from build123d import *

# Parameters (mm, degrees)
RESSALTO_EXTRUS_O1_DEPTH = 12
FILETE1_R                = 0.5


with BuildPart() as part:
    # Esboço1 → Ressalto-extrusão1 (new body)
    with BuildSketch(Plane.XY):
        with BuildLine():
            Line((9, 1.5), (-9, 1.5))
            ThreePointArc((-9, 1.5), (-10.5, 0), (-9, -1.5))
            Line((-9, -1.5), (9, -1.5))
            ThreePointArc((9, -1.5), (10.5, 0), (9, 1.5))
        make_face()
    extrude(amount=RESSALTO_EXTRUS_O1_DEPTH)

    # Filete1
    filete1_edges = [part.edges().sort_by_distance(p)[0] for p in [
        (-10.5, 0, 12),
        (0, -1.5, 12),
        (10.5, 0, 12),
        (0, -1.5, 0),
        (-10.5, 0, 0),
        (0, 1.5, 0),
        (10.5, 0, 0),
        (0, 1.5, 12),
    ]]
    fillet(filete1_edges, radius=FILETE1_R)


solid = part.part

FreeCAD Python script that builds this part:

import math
import FreeCAD as App
import Part
import Sketcher
from FreeCAD import Vector
Q = App.Units.Quantity


def edges_at(feature, points):
    """Names of the edges that pass closest to the given points."""
    edges = feature.Shape.Edges
    near = lambda p: min(range(len(edges)), key=lambda i: edges[i].distToShape(Part.Vertex(*p))[0])
    return sorted({f"Edge{near(p) + 1}" for p in points})

doc = App.newDocument("Part")
body = doc.addObject("PartDesign::Body", "Body")

sketch1 = body.newObject("Sketcher::SketchObject", "Sketch")
sketch1.AttachmentSupport = (doc.getObject("XY_Plane"), [""])
sketch1.MapMode = "FlatFace"
sketch1.addGeometry(Part.LineSegment(Vector(9, 1.5, 0), Vector(-9, 1.5, 0)), False)
sketch1.addGeometry(Part.ArcOfCircle(Part.Circle(Vector(-9, 0, 0), Vector(0, 0, 1), 1.5), math.radians(90), math.radians(270)), False)
sketch1.addGeometry(Part.LineSegment(Vector(-9, -1.5, 0), Vector(9, -1.5, 0)), False)
sketch1.addGeometry(Part.ArcOfCircle(Part.Circle(Vector(9, 0, 0), Vector(0, 0, 1), 1.5), math.radians(-90), math.radians(90)), False)
sketch1.addConstraint(Sketcher.Constraint("Tangent", 0, 2, 1, 1))
sketch1.addConstraint(Sketcher.Constraint("Tangent", 1, 2, 2, 1))
sketch1.addConstraint(Sketcher.Constraint("Tangent", 2, 2, 3, 1))
sketch1.addConstraint(Sketcher.Constraint("Tangent", 3, 2, 0, 1))
sketch1.addConstraint(Sketcher.Constraint("Horizontal", 0))
sketch1.addConstraint(Sketcher.Constraint("Horizontal", 2))
sketch1.addConstraint(Sketcher.Constraint("Symmetric", 1, 3, 3, 3, -1, 1))
sketch1.addConstraint(Sketcher.Constraint("Radius", 1, Q("1.5 mm")))
sketch1.addConstraint(Sketcher.Constraint("DistanceX", 0, 2, 0, 1, Q("18 mm")))
pad1 = body.newObject("PartDesign::Pad", "Pad")
pad1.Profile = sketch1
pad1.Length = 12
doc.recompute()

fillet = body.newObject("PartDesign::Fillet", "Fillet")
fillet.Base = (pad1, edges_at(pad1, [
    (-10.5, 0, 12),
    (0, -1.5, 12),
    (10.5, 0, 12),
    (0, -1.5, 0),
    (-10.5, 0, 0),
    (0, 1.5, 0),
    (10.5, 0, 0),
    (0, 1.5, 12),
]))
fillet.Radius = 0.5

doc.recompute()
